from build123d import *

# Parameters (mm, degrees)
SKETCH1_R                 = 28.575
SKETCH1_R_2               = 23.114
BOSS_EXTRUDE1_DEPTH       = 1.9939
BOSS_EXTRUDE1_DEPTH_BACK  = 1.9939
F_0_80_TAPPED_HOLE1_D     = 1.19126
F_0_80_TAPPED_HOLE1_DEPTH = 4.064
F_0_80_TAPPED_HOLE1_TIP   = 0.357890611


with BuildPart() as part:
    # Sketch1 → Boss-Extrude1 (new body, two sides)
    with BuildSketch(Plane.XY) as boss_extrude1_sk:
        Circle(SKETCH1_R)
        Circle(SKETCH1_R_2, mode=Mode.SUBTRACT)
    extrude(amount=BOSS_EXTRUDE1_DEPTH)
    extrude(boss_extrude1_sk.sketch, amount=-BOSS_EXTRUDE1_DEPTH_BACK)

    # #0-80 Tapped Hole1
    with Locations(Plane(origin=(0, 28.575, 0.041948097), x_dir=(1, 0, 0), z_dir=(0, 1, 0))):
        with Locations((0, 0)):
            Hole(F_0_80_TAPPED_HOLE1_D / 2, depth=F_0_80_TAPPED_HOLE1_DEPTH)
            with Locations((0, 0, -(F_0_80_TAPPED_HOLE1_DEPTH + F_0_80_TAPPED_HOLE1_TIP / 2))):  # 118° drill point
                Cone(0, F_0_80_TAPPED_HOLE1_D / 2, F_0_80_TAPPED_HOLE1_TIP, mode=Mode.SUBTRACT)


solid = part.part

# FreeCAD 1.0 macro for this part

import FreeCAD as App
import Part
import Sketcher

V = App.Vector
Q = App.Units.Quantity

doc = App.newDocument("Part")
body = doc.addObject("PartDesign::Body", "Body")

# Sketch on XY plane
sketch1 = body.newObject("Sketcher::SketchObject", "Sketch")
sketch1.AttachmentSupport = (doc.getObject("XY_Plane"), [""])
sketch1.MapMode = "FlatFace"
sketch1.addGeometry(Part.Circle(V(0, 0, 0), V(0, 0, 1), 29), False)
sketch1.addGeometry(Part.Circle(V(0, 0, 0), V(0, 0, 1), 23), False)
sketch1.addConstraint(Sketcher.Constraint("Coincident", 0, 3, -1, 1))
sketch1.addConstraint(Sketcher.Constraint("Coincident", 1, 3, -1, 1))
sketch1.addConstraint(Sketcher.Constraint("Diameter", 0, Q("2.25 in")))
sketch1.addConstraint(Sketcher.Constraint("Diameter", 1, Q("1.82 in")))
pad1 = body.newObject("PartDesign::Pad", "Pad")
pad1.Profile = sketch1
pad1.Type = "TwoLengths"
pad1.Length = Q("0.0785 in")
pad1.Length2 = Q("0.0785 in")

# Sketch on XZ plane
sketch2 = body.newObject("Sketcher::SketchObject", "Sketch001")
sketch2.AttachmentSupport = (doc.getObject("XZ_Plane"), [""])
sketch2.MapMode = "FlatFace"
sketch2.AttachmentOffset = App.Placement(V(0, 0, -1.125 * 25.4), App.Rotation())
sketch2.addGeometry(Part.Circle(V(0, 0, 0), V(0, 0, 1), 0.6), False)
sketch2.addConstraint(Sketcher.Constraint("PointOnObject", 0, 3, -2))
sketch2.addConstraint(Sketcher.Constraint("Diameter", 0, Q("0.0469 in")))
sketch2.addConstraint(Sketcher.Constraint("DistanceY", -1, 1, 0, 3, Q("0.041948 mm")))
doc.recompute()
hole = body.newObject("PartDesign::Hole", "Hole")
hole.Profile = sketch2
hole.ThreadType = "None"
hole.Diameter = Q("0.0469 in")
hole.DepthType = "Dimension"
hole.Depth = Q("0.16 in")
hole.DrillPoint = "Angled"
hole.DrillPointAngle = 118
hole.Reversed = True

doc.recompute()
